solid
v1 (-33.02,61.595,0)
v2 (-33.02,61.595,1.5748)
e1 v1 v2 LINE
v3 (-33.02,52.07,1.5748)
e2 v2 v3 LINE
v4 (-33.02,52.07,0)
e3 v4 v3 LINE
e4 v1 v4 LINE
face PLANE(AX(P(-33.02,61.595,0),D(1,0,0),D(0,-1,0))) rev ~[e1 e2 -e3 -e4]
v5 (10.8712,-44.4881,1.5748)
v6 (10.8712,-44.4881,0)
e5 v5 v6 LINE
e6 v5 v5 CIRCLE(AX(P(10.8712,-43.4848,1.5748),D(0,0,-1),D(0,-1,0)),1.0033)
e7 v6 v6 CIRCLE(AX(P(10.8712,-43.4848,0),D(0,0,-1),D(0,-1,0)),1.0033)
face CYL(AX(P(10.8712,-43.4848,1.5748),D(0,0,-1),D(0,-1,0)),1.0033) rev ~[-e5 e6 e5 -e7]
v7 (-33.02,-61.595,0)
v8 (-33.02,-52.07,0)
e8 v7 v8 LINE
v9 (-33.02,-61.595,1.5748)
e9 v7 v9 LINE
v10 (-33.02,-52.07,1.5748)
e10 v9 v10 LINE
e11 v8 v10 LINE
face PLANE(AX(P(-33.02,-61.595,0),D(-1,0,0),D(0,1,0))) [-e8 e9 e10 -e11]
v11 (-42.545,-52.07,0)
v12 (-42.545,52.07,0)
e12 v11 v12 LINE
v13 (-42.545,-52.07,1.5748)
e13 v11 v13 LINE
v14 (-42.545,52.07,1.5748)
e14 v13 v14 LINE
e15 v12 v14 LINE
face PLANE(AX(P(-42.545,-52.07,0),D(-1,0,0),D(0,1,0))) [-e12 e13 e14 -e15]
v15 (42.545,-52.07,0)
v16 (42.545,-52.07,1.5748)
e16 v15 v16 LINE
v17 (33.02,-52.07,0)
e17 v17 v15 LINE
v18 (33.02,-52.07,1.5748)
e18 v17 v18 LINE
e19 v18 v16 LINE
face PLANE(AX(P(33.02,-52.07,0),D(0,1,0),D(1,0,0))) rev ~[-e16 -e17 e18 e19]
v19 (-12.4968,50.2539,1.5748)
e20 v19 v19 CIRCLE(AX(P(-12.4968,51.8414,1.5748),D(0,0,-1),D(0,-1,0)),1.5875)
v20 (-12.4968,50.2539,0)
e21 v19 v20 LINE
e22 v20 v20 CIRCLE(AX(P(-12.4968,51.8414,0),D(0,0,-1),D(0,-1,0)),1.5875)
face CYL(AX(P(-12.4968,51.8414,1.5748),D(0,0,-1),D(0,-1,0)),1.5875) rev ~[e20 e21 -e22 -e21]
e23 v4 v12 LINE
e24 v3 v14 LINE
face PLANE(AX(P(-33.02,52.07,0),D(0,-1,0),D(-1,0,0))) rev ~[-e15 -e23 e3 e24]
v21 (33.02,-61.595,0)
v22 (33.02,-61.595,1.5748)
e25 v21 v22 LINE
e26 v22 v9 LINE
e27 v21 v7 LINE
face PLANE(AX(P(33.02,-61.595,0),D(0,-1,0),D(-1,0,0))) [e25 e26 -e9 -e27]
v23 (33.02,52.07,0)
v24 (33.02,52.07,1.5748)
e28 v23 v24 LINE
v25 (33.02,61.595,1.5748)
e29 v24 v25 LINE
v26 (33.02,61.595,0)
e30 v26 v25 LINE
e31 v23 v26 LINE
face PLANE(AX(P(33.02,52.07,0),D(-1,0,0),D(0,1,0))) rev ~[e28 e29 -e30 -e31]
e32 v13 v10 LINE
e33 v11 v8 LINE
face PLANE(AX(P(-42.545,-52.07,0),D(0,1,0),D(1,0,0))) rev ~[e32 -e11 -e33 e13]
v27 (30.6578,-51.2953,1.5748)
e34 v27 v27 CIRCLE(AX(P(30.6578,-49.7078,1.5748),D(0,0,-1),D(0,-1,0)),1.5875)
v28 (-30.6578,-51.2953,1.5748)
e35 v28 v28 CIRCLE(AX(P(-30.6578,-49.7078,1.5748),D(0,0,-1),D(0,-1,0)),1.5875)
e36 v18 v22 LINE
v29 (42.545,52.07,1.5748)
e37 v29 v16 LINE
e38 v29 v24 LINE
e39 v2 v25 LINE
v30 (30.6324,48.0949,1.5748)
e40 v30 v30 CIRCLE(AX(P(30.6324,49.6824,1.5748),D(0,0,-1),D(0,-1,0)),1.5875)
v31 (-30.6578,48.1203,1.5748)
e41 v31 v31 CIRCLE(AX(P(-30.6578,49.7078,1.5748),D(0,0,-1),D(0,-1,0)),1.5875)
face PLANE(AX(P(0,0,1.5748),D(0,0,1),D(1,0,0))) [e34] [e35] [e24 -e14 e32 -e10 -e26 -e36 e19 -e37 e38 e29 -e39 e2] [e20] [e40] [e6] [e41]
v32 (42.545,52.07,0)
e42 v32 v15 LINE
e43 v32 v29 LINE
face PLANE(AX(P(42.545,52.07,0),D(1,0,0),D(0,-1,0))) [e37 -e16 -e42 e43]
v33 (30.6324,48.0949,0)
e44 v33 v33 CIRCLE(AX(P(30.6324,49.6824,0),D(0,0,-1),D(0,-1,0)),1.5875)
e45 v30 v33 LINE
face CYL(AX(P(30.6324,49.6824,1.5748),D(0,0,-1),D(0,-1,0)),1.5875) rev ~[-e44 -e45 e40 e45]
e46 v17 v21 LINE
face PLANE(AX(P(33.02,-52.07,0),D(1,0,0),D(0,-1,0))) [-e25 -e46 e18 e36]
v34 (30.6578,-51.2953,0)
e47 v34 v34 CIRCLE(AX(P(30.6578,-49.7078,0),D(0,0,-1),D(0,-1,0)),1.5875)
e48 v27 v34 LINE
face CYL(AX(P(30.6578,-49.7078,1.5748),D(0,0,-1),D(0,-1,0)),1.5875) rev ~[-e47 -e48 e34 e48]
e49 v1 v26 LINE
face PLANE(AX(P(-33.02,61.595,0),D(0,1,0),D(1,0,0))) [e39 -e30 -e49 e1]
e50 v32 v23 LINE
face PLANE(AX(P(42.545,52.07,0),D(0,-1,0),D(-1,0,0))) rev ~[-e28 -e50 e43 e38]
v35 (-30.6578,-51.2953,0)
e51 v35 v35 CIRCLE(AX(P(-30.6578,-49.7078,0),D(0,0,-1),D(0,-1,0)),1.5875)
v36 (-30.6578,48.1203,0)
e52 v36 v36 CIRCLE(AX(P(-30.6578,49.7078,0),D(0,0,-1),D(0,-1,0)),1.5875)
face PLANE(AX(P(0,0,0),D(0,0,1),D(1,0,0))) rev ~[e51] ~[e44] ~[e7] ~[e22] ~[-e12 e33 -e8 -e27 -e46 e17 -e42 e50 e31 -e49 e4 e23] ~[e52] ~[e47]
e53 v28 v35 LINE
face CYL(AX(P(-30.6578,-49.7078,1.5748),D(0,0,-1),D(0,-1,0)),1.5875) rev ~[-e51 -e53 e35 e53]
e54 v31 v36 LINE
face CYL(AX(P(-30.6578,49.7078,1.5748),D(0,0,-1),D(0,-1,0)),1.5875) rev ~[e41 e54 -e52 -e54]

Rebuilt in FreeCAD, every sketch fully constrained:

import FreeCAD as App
import Part
import Sketcher

V = App.Vector
Q = App.Units.Quantity

doc = App.newDocument("Part")
body = doc.addObject("PartDesign::Body", "Body")

# Sketch on XY plane
sketch1 = doc.addObject("Sketcher::SketchObject", "Sketch")
body.addObject(sketch1)
sketch1.AttachmentSupport = (doc.XY_Plane, [""])
sketch1.MapMode = "FlatFace"
sketch1.addGeometry(Part.LineSegment(V(-33, 62, 0), V(-33, 52, 0)), False)
sketch1.addGeometry(Part.LineSegment(V(-33, 52, 0), V(-43, 52, 0)), False)
sketch1.addGeometry(Part.LineSegment(V(-43, 52, 0), V(-43, -52, 0)), False)
sketch1.addGeometry(Part.LineSegment(V(-43, -52, 0), V(-33, -52, 0)), False)
sketch1.addGeometry(Part.LineSegment(V(-33, -52, 0), V(-33, -62, 0)), False)
sketch1.addGeometry(Part.LineSegment(V(-33, -62, 0), V(33, -62, 0)), False)
sketch1.addGeometry(Part.LineSegment(V(33, -62, 0), V(33, -52, 0)), False)
sketch1.addGeometry(Part.LineSegment(V(33, -52, 0), V(43, -52, 0)), False)
sketch1.addGeometry(Part.LineSegment(V(43, -52, 0), V(43, 52, 0)), False)
sketch1.addGeometry(Part.LineSegment(V(43, 52, 0), V(33, 52, 0)), False)
sketch1.addGeometry(Part.LineSegment(V(33, 52, 0), V(33, 62, 0)), False)
sketch1.addGeometry(Part.LineSegment(V(33, 62, 0), V(-33, 62, 0)), False)
sketch1.addConstraint(Sketcher.Constraint("Coincident", 0, 2, 1, 1))
sketch1.addConstraint(Sketcher.Constraint("Coincident", 1, 2, 2, 1))
sketch1.addConstraint(Sketcher.Constraint("Coincident", 2, 2, 3, 1))
sketch1.addConstraint(Sketcher.Constraint("Coincident", 3, 2, 4, 1))
sketch1.addConstraint(Sketcher.Constraint("Coincident", 4, 2, 5, 1))
sketch1.addConstraint(Sketcher.Constraint("Coincident", 5, 2, 6, 1))
sketch1.addConstraint(Sketcher.Constraint("Coincident", 6, 2, 7, 1))
sketch1.addConstraint(Sketcher.Constraint("Coincident", 7, 2, 8, 1))
sketch1.addConstraint(Sketcher.Constraint("Coincident", 8, 2, 9, 1))
sketch1.addConstraint(Sketcher.Constraint("Coincident", 9, 2, 10, 1))
sketch1.addConstraint(Sketcher.Constraint("Coincident", 10, 2, 11, 1))
sketch1.addConstraint(Sketcher.Constraint("Coincident", 11, 2, 0, 1))
sketch1.addConstraint(Sketcher.Constraint("Vertical", 0))
sketch1.addConstraint(Sketcher.Constraint("Horizontal", 1))
sketch1.addConstraint(Sketcher.Constraint("Vertical", 2))
sketch1.addConstraint(Sketcher.Constraint("Horizontal", 3))
sketch1.addConstraint(Sketcher.Constraint("Vertical", 4))
sketch1.addConstraint(Sketcher.Constraint("Horizontal", 5))
sketch1.addConstraint(Sketcher.Constraint("Vertical", 6))
sketch1.addConstraint(Sketcher.Constraint("Horizontal", 7))
sketch1.addConstraint(Sketcher.Constraint("Vertical", 8))
sketch1.addConstraint(Sketcher.Constraint("Horizontal", 9))
sketch1.addConstraint(Sketcher.Constraint("Vertical", 10))
sketch1.addConstraint(Sketcher.Constraint("Horizontal", 11))
sketch1.addConstraint(Sketcher.Constraint("Symmetric", 0, 2, 6, 2, -1, 1))
sketch1.addConstraint(Sketcher.Constraint("Symmetric", 2, 2, 8, 2, -1, 1))
sketch1.addConstraint(Sketcher.Constraint("Symmetric", 4, 2, 10, 2, -1, 1))
sketch1.addConstraint(Sketcher.Constraint("Symmetric", 3, 2, 6, 2, -2))
sketch1.addConstraint(Sketcher.Constraint("Equal", 9, 0))
sketch1.addConstraint(Sketcher.Constraint("DistanceX", 5, 1, 5, 2, Q("2.6 in")))
sketch1.addConstraint(Sketcher.Constraint("DistanceY", 2, 2, 2, 1, Q("4.1 in")))
sketch1.addConstraint(Sketcher.Constraint("DistanceX", 2, 2, 7, 2, Q("3.35 in")))
pad1 = doc.addObject("PartDesign::Pad", "Pad")
body.addObject(pad1)
pad1.Profile = sketch1
pad1.Length = Q("0.062 in")

# Sketch on XY plane
sketch2 = doc.addObject("Sketcher::SketchObject", "Sketch001")
body.addObject(sketch2)
sketch2.AttachmentSupport = (doc.XY_Plane, [""])
sketch2.MapMode = "FlatFace"
sketch2.AttachmentOffset = App.Placement(V(0, 0, 0.062 * 25.4), App.Rotation())
sketch2.addGeometry(Part.Circle(V(30.6, 49.7, 0), V(0, 0, 1), 1.6), False)
sketch2.addConstraint(Sketcher.Constraint("Diameter", 0, Q("0.125 in")))
sketch2.addConstraint(Sketcher.Constraint("DistanceX", -1, 1, 0, 3, Q("1.206 in")))
sketch2.addConstraint(Sketcher.Constraint("DistanceY", -1, 1, 0, 3, Q("1.956 in")))
doc.recompute()
hole = doc.addObject("PartDesign::Hole", "Hole")
body.addObject(hole)
hole.Profile = sketch2
hole.ThreadType = "None"
hole.Diameter = Q("0.125 in")
hole.DepthType = "ThroughAll"

# Sketch on XY plane
sketch3 = doc.addObject("Sketcher::SketchObject", "Sketch002")
body.addObject(sketch3)
sketch3.AttachmentSupport = (doc.XY_Plane, [""])
sketch3.MapMode = "FlatFace"
sketch3.AttachmentOffset = App.Placement(V(0, 0, 0.062 * 25.4), App.Rotation())
sketch3.addGeometry(Part.Circle(V(-30.7, 49.7, 0), V(0, 0, 1), 1.6), False)
sketch3.addConstraint(Sketcher.Constraint("Diameter", 0, Q("0.125 in")))
sketch3.addConstraint(Sketcher.Constraint("DistanceX", 0, 3, -1, 1, Q("1.207 in")))
sketch3.addConstraint(Sketcher.Constraint("DistanceY", -1, 1, 0, 3, Q("1.957 in")))
doc.recompute()
hole2 = doc.addObject("PartDesign::Hole", "Hole001")
body.addObject(hole2)
hole2.Profile = sketch3
hole2.ThreadType = "None"
hole2.Diameter = Q("0.125 in")
hole2.DepthType = "ThroughAll"

# Sketch on XY plane
sketch4 = doc.addObject("Sketcher::SketchObject", "Sketch003")
body.addObject(sketch4)
sketch4.AttachmentSupport = (doc.XY_Plane, [""])
sketch4.MapMode = "FlatFace"
sketch4.AttachmentOffset = App.Placement(V(0, 0, 0.062 * 25.4), App.Rotation())
sketch4.addGeometry(Part.Circle(V(-30.7, -49.7, 0), V(0, 0, 1), 1.6), False)
sketch4.addConstraint(Sketcher.Constraint("Diameter", 0, Q("0.125 in")))
sketch4.addConstraint(Sketcher.Constraint("DistanceX", 0, 3, -1, 1, Q("1.207 in")))
sketch4.addConstraint(Sketcher.Constraint("DistanceY", 0, 3, -1, 1, Q("1.957 in")))
doc.recompute()
hole3 = doc.addObject("PartDesign::Hole", "Hole002")
body.addObject(hole3)
hole3.Profile = sketch4
hole3.ThreadType = "None"
hole3.Diameter = Q("0.125 in")
hole3.DepthType = "ThroughAll"

# Sketch on XY plane
sketch5 = doc.addObject("Sketcher::SketchObject", "Sketch004")
body.addObject(sketch5)
sketch5.AttachmentSupport = (doc.XY_Plane, [""])
sketch5.MapMode = "FlatFace"
sketch5.AttachmentOffset = App.Placement(V(0, 0, 0.062 * 25.4), App.Rotation())
sketch5.addGeometry(Part.Circle(V(30.7, -49.7, 0), V(0, 0, 1), 1.6), False)
sketch5.addConstraint(Sketcher.Constraint("Diameter", 0, Q("0.125 in")))
sketch5.addConstraint(Sketcher.Constraint("DistanceX", -1, 1, 0, 3, Q("1.207 in")))
sketch5.addConstraint(Sketcher.Constraint("DistanceY", 0, 3, -1, 1, Q("1.957 in")))
doc.recompute()
hole4 = doc.addObject("PartDesign::Hole", "Hole003")
body.addObject(hole4)
hole4.Profile = sketch5
hole4.ThreadType = "None"
hole4.Diameter = Q("0.125 in")
hole4.DepthType = "ThroughAll"

# Sketch on XY plane
sketch6 = doc.addObject("Sketcher::SketchObject", "Sketch005")
body.addObject(sketch6)
sketch6.AttachmentSupport = (doc.XY_Plane, [""])
sketch6.MapMode = "FlatFace"
sketch6.AttachmentOffset = App.Placement(V(0, 0, 0.062 * 25.4), App.Rotation())
sketch6.addGeometry(Part.Circle(V(10.9, -43.5, 0), V(0, 0, 1), 1), False)
sketch6.addConstraint(Sketcher.Constraint("Diameter", 0, Q("0.079 in")))
sketch6.addConstraint(Sketcher.Constraint("DistanceX", -1, 1, 0, 3, Q("0.428 in")))
sketch6.addConstraint(Sketcher.Constraint("DistanceY", 0, 3, -1, 1, Q("1.712 in")))
doc.recompute()
hole5 = doc.addObject("PartDesign::Hole", "Hole004")
body.addObject(hole5)
hole5.Profile = sketch6
hole5.ThreadType = "None"
hole5.Diameter = Q("0.079 in")
hole5.DepthType = "ThroughAll"

# Sketch on XY plane
sketch7 = doc.addObject("Sketcher::SketchObject", "Sketch006")
body.addObject(sketch7)
sketch7.AttachmentSupport = (doc.XY_Plane, [""])
sketch7.MapMode = "FlatFace"
sketch7.AttachmentOffset = App.Placement(V(0, 0, 0.062 * 25.4), App.Rotation())
sketch7.addGeometry(Part.Circle(V(-12.5, 51.8, 0), V(0, 0, 1), 1.6), False)
sketch7.addConstraint(Sketcher.Constraint("Diameter", 0, Q("0.125 in")))
sketch7.addConstraint(Sketcher.Constraint("DistanceX", 0, 3, -1, 1, Q("0.492 in")))
sketch7.addConstraint(Sketcher.Constraint("DistanceY", -1, 1, 0, 3, Q("2.041 in")))
doc.recompute()
hole6 = doc.addObject("PartDesign::Hole", "Hole005")
body.addObject(hole6)
hole6.Profile = sketch7
hole6.ThreadType = "None"
hole6.Diameter = Q("0.125 in")
hole6.DepthType = "ThroughAll"

doc.recompute()
